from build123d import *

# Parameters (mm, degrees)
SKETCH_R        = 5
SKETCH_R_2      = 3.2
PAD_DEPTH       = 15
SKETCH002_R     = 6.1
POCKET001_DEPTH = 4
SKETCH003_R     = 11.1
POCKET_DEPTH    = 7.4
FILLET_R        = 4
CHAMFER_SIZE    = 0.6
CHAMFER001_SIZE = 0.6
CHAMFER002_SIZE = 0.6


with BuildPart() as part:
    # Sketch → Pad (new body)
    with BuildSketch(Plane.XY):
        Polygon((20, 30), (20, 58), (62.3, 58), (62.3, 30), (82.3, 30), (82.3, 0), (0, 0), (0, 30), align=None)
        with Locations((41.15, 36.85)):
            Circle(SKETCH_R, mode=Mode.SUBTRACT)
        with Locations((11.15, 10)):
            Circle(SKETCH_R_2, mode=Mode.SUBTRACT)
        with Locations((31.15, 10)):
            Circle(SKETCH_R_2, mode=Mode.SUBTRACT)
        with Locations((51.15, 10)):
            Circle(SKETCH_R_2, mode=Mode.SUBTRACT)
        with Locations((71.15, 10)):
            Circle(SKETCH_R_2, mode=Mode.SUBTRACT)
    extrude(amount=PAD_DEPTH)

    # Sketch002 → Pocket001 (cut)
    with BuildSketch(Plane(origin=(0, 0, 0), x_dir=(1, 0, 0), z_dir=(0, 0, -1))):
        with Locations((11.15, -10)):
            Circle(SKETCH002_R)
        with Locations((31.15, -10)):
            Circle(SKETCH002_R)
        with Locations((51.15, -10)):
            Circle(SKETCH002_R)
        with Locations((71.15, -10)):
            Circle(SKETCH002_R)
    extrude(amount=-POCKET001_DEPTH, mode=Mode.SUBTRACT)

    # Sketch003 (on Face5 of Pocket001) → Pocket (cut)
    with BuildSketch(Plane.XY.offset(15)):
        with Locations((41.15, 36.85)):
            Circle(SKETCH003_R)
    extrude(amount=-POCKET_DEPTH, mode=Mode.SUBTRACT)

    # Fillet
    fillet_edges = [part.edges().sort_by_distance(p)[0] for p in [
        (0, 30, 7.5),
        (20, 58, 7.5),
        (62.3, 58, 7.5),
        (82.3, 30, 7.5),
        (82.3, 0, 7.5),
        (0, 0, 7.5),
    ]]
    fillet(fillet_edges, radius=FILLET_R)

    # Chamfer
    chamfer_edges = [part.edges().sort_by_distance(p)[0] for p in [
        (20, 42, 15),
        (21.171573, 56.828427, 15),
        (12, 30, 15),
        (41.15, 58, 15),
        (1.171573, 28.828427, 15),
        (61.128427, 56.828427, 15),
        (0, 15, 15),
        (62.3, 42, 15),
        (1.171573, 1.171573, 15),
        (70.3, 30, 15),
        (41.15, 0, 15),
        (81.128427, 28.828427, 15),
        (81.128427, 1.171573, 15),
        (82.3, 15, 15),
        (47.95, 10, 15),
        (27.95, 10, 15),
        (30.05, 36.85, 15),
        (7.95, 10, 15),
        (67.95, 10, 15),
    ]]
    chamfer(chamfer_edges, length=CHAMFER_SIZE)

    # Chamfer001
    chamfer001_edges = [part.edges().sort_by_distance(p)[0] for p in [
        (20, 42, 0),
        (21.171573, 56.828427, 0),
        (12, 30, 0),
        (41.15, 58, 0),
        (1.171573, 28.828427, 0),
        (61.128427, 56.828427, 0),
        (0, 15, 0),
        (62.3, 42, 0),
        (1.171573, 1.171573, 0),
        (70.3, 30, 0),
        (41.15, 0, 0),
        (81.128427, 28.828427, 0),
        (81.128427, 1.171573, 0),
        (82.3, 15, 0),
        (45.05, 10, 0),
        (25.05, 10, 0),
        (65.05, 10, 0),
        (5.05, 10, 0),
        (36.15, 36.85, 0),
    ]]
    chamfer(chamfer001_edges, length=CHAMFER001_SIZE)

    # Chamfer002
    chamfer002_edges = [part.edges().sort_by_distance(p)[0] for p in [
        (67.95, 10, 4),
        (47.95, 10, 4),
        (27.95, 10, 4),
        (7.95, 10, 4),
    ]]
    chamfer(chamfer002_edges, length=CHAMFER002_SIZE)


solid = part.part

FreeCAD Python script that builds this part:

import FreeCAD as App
import Part
import Sketcher


def edges_at(feature, points):
    """Names of the edges that pass closest to the given points."""
    edges = feature.Shape.Edges
    near = lambda p: min(range(len(edges)), key=lambda i: edges[i].distToShape(Part.Vertex(*p))[0])
    return sorted({f"Edge{near(p) + 1}" for p in points})

doc = App.newDocument("Part")
params = doc.addObject("Spreadsheet::Sheet", "Params")
for row, (alias, value) in enumerate([
    ("sketch1_diameter", "10 mm"),
    ("sketch1_diameter2", "6.4 mm"),
    ("sketch1_width", "20 mm"),
    ("sketch1_height", "28 mm"),
    ("sketch1_height2", "30 mm"),
    ("pad1_length", "15 mm"),
    ("sketch2_diameter", "12.2 mm"),
    ("pocket1_length", "4 mm"),
    ("sketch3_diameter", "22.2 mm"),
    ("pocket2_length", "7.4 mm"),
    ("fillet_radius", "4 mm"),
    ("chamfer_size", "0.6 mm"),
    ("chamfer2_size", "0.6 mm"),
    ("chamfer3_size", "0.6 mm"),
], start=1):
    params.set(f"A{row}", alias)
    params.set(f"B{row}", "=" + value)
    params.setAlias(f"B{row}", alias)

body = doc.addObject("PartDesign::Body", "Body")

# Sketch on XY plane
sketch1 = doc.addObject("Sketcher::SketchObject", "Sketch")
body.addObject(sketch1)
sketch1.AttachmentSupport = (doc.XY_Plane, [""])
sketch1.MapMode = "FlatFace"
sketch1.addGeometry(Part.LineSegment(App.Vector(20, 58, 0), App.Vector(20, 30, 0)), False)
sketch1.addGeometry(Part.LineSegment(App.Vector(20, 30, 0), App.Vector(0, 30, 0)), False)
sketch1.addGeometry(Part.LineSegment(App.Vector(0, 30, 0), App.Vector(0, 0, 0)), False)
sketch1.addGeometry(Part.LineSegment(App.Vector(0, 0, 0), App.Vector(82.3, 0, 0)), False)
sketch1.addGeometry(Part.LineSegment(App.Vector(82.3, 0, 0), App.Vector(82.3, 30, 0)), False)
sketch1.addGeometry(Part.LineSegment(App.Vector(82.3, 30, 0), App.Vector(62.3, 30, 0)), False)
sketch1.addGeometry(Part.LineSegment(App.Vector(62.3, 30, 0), App.Vector(62.3, 58, 0)), False)
sketch1.addGeometry(Part.LineSegment(App.Vector(62.3, 58, 0), App.Vector(20, 58, 0)), False)
sketch1.addGeometry(Part.Circle(App.Vector(71.2, 10, 0), App.Vector(0, 0, 1), 3.2), False)
sketch1.addGeometry(Part.Circle(App.Vector(51.1, 10, 0), App.Vector(0, 0, 1), 3.2), False)
sketch1.addGeometry(Part.Circle(App.Vector(31.1, 10, 0), App.Vector(0, 0, 1), 3.2), False)
sketch1.addGeometry(Part.Circle(App.Vector(11.2, 10, 0), App.Vector(0, 0, 1), 3.2), False)
sketch1.addGeometry(Part.Circle(App.Vector(41.1, 36.9, 0), App.Vector(0, 0, 1), 5), False)
sketch1.addConstraint(Sketcher.Constraint("Coincident", 0, 2, 1, 1))
sketch1.addConstraint(Sketcher.Constraint("Coincident", 1, 2, 2, 1))
sketch1.addConstraint(Sketcher.Constraint("Coincident", 2, 2, 3, 1))
sketch1.addConstraint(Sketcher.Constraint("Coincident", 3, 2, 4, 1))
sketch1.addConstraint(Sketcher.Constraint("Coincident", 4, 2, 5, 1))
sketch1.addConstraint(Sketcher.Constraint("Coincident", 5, 2, 6, 1))
sketch1.addConstraint(Sketcher.Constraint("Coincident", 6, 2, 7, 1))
sketch1.addConstraint(Sketcher.Constraint("Coincident", 7, 2, 0, 1))
sketch1.addConstraint(Sketcher.Constraint("Vertical", 0))
sketch1.addConstraint(Sketcher.Constraint("Horizontal", 1))
sketch1.addConstraint(Sketcher.Constraint("Vertical", 2))
sketch1.addConstraint(Sketcher.Constraint("Horizontal", 3))
sketch1.addConstraint(Sketcher.Constraint("Vertical", 4))
sketch1.addConstraint(Sketcher.Constraint("Horizontal", 5))
sketch1.addConstraint(Sketcher.Constraint("Vertical", 6))
sketch1.addConstraint(Sketcher.Constraint("Horizontal", 7))
sketch1.addConstraint(Sketcher.Constraint("Coincident", 2, 2, -1, 1))
sketch1.addConstraint(Sketcher.Constraint("Equal", 8, 9))
sketch1.addConstraint(Sketcher.Constraint("Equal", 9, 10))
sketch1.addConstraint(Sketcher.Constraint("Equal", 10, 11))
sketch1.addConstraint(Sketcher.Constraint("Horizontal", 8, 3, 9, 3))
sketch1.addConstraint(Sketcher.Constraint("Horizontal", 9, 3, 10, 3))
sketch1.addConstraint(Sketcher.Constraint("Horizontal", 10, 3, 11, 3))
sketch1.addConstraint(Sketcher.Constraint("Horizontal", 1, 2, 4, 2))
sketch1.addConstraint(Sketcher.Constraint("Equal", 1, 5))
sketch1.addConstraint(Sketcher.Constraint("Diameter", 12, 10.0))
sketch1.addConstraint(Sketcher.Constraint("Diameter", 8, 6.4))
sketch1.addConstraint(Sketcher.Constraint("DistanceX", 1, 2, 1, 1, 20.0))
sketch1.addConstraint(Sketcher.Constraint("DistanceY", 0, 2, 0, 1, 28.0))
sketch1.addConstraint(Sketcher.Constraint("DistanceY", 2, 2, 2, 1, 30.0))
sketch1.addConstraint(Sketcher.Constraint("DistanceX", 3, 1, 3, 2, 82.3))
sketch1.addConstraint(Sketcher.Constraint("DistanceY", -1, 1, 8, 3, 10.0))
sketch1.addConstraint(Sketcher.Constraint("DistanceX", 9, 3, 8, 3, 20.0))
sketch1.addConstraint(Sketcher.Constraint("DistanceX", 10, 3, 9, 3, 20.0))
sketch1.addConstraint(Sketcher.Constraint("DistanceX", 11, 3, 10, 3, 20.0))
sketch1.addConstraint(Sketcher.Constraint("DistanceX", 12, 3, 9, 3, 10.0))
sketch1.addConstraint(Sketcher.Constraint("DistanceX", -1, 1, 8, 3, 71.15))
sketch1.addConstraint(Sketcher.Constraint("DistanceY", -1, 1, 12, 3, 36.85))
sketch1.setExpression("Constraints[25]", "Params.sketch1_diameter")
sketch1.setExpression("Constraints[26]", "Params.sketch1_diameter2")
sketch1.setExpression("Constraints[27]", "Params.sketch1_width")
sketch1.setExpression("Constraints[28]", "Params.sketch1_height")
sketch1.setExpression("Constraints[29]", "Params.sketch1_height2")
pad1 = doc.addObject("PartDesign::Pad", "Pad")
body.addObject(pad1)
pad1.Profile = sketch1
pad1.setExpression("Length", "Params.pad1_length")

# Sketch on XY plane
sketch2 = doc.addObject("Sketcher::SketchObject", "Sketch001")
body.addObject(sketch2)
sketch2.AttachmentSupport = (doc.XY_Plane, [""])
sketch2.MapMode = "FlatFace"
sketch2.addGeometry(Part.Circle(App.Vector(11, 10, 0), App.Vector(0, 0, 1), 6), False)
sketch2.addGeometry(Part.Circle(App.Vector(31, 10, 0), App.Vector(0, 0, 1), 6), False)
sketch2.addGeometry(Part.Circle(App.Vector(51, 10, 0), App.Vector(0, 0, 1), 6), False)
sketch2.addGeometry(Part.Circle(App.Vector(71, 10, 0), App.Vector(0, 0, 1), 6), False)
sketch2.addConstraint(Sketcher.Constraint("Equal", 0, 1))
sketch2.addConstraint(Sketcher.Constraint("Equal", 1, 2))
sketch2.addConstraint(Sketcher.Constraint("Equal", 2, 3))
sketch2.addConstraint(Sketcher.Constraint("Horizontal", 0, 3, 1, 3))
sketch2.addConstraint(Sketcher.Constraint("Horizontal", 1, 3, 2, 3))
sketch2.addConstraint(Sketcher.Constraint("Horizontal", 2, 3, 3, 3))
sketch2.addConstraint(Sketcher.Constraint("Diameter", 0, 12.2))
sketch2.addConstraint(Sketcher.Constraint("DistanceY", -1, 1, 0, 3, 10.0))
sketch2.addConstraint(Sketcher.Constraint("DistanceX", 0, 3, 1, 3, 20.0))
sketch2.addConstraint(Sketcher.Constraint("DistanceX", 1, 3, 2, 3, 20.0))
sketch2.addConstraint(Sketcher.Constraint("DistanceX", 2, 3, 3, 3, 20.0))
sketch2.addConstraint(Sketcher.Constraint("DistanceX", -1, 1, 0, 3, 11.15))
sketch2.setExpression("Constraints[6]", "Params.sketch2_diameter")
pocket1 = doc.addObject("PartDesign::Pocket", "Pocket")
body.addObject(pocket1)
pocket1.Profile = sketch2
pocket1.setExpression("Length", "Params.pocket1_length")
pocket1.Reversed = True

# Sketch on XY plane
sketch3 = doc.addObject("Sketcher::SketchObject", "Sketch002")
body.addObject(sketch3)
sketch3.AttachmentSupport = (doc.XY_Plane, [""])
sketch3.MapMode = "FlatFace"
sketch3.AttachmentOffset = App.Placement(App.Vector(0, 0, 15), App.Rotation())
sketch3.addGeometry(Part.Circle(App.Vector(41, 37, 0), App.Vector(0, 0, 1), 11), False)
sketch3.addConstraint(Sketcher.Constraint("Diameter", 0, 22.2))
sketch3.addConstraint(Sketcher.Constraint("DistanceX", -1, 1, 0, 3, 41.15))
sketch3.addConstraint(Sketcher.Constraint("DistanceY", -1, 1, 0, 3, 36.85))
sketch3.setExpression("Constraints[0]", "Params.sketch3_diameter")
pocket2 = doc.addObject("PartDesign::Pocket", "Pocket001")
body.addObject(pocket2)
pocket2.Profile = sketch3
pocket2.setExpression("Length", "Params.pocket2_length")
doc.recompute()

fillet = doc.addObject("PartDesign::Fillet", "Fillet")
body.addObject(fillet)
fillet.Base = (pocket2, edges_at(pocket2, [
    (0, 30, 7.5),
    (20, 58, 7.5),
    (62.3, 58, 7.5),
    (82.3, 30, 7.5),
    (82.3, 0, 7.5),
    (0, 0, 7.5),
]))
fillet.setExpression("Radius", "Params.fillet_radius")
doc.recompute()

chamfer = doc.addObject("PartDesign::Chamfer", "Chamfer")
body.addObject(chamfer)
chamfer.Base = (fillet, edges_at(fillet, [
    (20, 42, 15),
    (21.172, 56.828, 15),
    (12, 30, 15),
    (41.15, 58, 15),
    (1.172, 28.828, 15),
    (61.128, 56.828, 15),
    (0, 15, 15),
    (62.3, 42, 15),
    (1.172, 1.172, 15),
    (70.3, 30, 15),
    (41.15, 0, 15),
    (81.128, 28.828, 15),
    (81.128, 1.172, 15),
    (82.3, 15, 15),
    (47.95, 10, 15),
    (27.95, 10, 15),
    (30.05, 36.85, 15),
    (7.95, 10, 15),
    (67.95, 10, 15),
]))
chamfer.setExpression("Size", "Params.chamfer_size")
doc.recompute()

chamfer2 = doc.addObject("PartDesign::Chamfer", "Chamfer001")
body.addObject(chamfer2)
chamfer2.Base = (chamfer, edges_at(chamfer, [
    (20, 42, 0),
    (21.172, 56.828, 0),
    (12, 30, 0),
    (41.15, 58, 0),
    (1.172, 28.828, 0),
    (61.128, 56.828, 0),
    (0, 15, 0),
    (62.3, 42, 0),
    (1.172, 1.172, 0),
    (70.3, 30, 0),
    (41.15, 0, 0),
    (81.128, 28.828, 0),
    (81.128, 1.172, 0),
    (82.3, 15, 0),
    (45.05, 10, 0),
    (25.05, 10, 0),
    (65.05, 10, 0),
    (5.05, 10, 0),
    (36.15, 36.85, 0),
]))
chamfer2.setExpression("Size", "Params.chamfer2_size")
doc.recompute()

chamfer3 = doc.addObject("PartDesign::Chamfer", "Chamfer002")
body.addObject(chamfer3)
chamfer3.Base = (chamfer2, edges_at(chamfer2, [
    (67.95, 10, 4),
    (47.95, 10, 4),
    (27.95, 10, 4),
    (7.95, 10, 4),
]))
chamfer3.setExpression("Size", "Params.chamfer3_size")

doc.recompute()
